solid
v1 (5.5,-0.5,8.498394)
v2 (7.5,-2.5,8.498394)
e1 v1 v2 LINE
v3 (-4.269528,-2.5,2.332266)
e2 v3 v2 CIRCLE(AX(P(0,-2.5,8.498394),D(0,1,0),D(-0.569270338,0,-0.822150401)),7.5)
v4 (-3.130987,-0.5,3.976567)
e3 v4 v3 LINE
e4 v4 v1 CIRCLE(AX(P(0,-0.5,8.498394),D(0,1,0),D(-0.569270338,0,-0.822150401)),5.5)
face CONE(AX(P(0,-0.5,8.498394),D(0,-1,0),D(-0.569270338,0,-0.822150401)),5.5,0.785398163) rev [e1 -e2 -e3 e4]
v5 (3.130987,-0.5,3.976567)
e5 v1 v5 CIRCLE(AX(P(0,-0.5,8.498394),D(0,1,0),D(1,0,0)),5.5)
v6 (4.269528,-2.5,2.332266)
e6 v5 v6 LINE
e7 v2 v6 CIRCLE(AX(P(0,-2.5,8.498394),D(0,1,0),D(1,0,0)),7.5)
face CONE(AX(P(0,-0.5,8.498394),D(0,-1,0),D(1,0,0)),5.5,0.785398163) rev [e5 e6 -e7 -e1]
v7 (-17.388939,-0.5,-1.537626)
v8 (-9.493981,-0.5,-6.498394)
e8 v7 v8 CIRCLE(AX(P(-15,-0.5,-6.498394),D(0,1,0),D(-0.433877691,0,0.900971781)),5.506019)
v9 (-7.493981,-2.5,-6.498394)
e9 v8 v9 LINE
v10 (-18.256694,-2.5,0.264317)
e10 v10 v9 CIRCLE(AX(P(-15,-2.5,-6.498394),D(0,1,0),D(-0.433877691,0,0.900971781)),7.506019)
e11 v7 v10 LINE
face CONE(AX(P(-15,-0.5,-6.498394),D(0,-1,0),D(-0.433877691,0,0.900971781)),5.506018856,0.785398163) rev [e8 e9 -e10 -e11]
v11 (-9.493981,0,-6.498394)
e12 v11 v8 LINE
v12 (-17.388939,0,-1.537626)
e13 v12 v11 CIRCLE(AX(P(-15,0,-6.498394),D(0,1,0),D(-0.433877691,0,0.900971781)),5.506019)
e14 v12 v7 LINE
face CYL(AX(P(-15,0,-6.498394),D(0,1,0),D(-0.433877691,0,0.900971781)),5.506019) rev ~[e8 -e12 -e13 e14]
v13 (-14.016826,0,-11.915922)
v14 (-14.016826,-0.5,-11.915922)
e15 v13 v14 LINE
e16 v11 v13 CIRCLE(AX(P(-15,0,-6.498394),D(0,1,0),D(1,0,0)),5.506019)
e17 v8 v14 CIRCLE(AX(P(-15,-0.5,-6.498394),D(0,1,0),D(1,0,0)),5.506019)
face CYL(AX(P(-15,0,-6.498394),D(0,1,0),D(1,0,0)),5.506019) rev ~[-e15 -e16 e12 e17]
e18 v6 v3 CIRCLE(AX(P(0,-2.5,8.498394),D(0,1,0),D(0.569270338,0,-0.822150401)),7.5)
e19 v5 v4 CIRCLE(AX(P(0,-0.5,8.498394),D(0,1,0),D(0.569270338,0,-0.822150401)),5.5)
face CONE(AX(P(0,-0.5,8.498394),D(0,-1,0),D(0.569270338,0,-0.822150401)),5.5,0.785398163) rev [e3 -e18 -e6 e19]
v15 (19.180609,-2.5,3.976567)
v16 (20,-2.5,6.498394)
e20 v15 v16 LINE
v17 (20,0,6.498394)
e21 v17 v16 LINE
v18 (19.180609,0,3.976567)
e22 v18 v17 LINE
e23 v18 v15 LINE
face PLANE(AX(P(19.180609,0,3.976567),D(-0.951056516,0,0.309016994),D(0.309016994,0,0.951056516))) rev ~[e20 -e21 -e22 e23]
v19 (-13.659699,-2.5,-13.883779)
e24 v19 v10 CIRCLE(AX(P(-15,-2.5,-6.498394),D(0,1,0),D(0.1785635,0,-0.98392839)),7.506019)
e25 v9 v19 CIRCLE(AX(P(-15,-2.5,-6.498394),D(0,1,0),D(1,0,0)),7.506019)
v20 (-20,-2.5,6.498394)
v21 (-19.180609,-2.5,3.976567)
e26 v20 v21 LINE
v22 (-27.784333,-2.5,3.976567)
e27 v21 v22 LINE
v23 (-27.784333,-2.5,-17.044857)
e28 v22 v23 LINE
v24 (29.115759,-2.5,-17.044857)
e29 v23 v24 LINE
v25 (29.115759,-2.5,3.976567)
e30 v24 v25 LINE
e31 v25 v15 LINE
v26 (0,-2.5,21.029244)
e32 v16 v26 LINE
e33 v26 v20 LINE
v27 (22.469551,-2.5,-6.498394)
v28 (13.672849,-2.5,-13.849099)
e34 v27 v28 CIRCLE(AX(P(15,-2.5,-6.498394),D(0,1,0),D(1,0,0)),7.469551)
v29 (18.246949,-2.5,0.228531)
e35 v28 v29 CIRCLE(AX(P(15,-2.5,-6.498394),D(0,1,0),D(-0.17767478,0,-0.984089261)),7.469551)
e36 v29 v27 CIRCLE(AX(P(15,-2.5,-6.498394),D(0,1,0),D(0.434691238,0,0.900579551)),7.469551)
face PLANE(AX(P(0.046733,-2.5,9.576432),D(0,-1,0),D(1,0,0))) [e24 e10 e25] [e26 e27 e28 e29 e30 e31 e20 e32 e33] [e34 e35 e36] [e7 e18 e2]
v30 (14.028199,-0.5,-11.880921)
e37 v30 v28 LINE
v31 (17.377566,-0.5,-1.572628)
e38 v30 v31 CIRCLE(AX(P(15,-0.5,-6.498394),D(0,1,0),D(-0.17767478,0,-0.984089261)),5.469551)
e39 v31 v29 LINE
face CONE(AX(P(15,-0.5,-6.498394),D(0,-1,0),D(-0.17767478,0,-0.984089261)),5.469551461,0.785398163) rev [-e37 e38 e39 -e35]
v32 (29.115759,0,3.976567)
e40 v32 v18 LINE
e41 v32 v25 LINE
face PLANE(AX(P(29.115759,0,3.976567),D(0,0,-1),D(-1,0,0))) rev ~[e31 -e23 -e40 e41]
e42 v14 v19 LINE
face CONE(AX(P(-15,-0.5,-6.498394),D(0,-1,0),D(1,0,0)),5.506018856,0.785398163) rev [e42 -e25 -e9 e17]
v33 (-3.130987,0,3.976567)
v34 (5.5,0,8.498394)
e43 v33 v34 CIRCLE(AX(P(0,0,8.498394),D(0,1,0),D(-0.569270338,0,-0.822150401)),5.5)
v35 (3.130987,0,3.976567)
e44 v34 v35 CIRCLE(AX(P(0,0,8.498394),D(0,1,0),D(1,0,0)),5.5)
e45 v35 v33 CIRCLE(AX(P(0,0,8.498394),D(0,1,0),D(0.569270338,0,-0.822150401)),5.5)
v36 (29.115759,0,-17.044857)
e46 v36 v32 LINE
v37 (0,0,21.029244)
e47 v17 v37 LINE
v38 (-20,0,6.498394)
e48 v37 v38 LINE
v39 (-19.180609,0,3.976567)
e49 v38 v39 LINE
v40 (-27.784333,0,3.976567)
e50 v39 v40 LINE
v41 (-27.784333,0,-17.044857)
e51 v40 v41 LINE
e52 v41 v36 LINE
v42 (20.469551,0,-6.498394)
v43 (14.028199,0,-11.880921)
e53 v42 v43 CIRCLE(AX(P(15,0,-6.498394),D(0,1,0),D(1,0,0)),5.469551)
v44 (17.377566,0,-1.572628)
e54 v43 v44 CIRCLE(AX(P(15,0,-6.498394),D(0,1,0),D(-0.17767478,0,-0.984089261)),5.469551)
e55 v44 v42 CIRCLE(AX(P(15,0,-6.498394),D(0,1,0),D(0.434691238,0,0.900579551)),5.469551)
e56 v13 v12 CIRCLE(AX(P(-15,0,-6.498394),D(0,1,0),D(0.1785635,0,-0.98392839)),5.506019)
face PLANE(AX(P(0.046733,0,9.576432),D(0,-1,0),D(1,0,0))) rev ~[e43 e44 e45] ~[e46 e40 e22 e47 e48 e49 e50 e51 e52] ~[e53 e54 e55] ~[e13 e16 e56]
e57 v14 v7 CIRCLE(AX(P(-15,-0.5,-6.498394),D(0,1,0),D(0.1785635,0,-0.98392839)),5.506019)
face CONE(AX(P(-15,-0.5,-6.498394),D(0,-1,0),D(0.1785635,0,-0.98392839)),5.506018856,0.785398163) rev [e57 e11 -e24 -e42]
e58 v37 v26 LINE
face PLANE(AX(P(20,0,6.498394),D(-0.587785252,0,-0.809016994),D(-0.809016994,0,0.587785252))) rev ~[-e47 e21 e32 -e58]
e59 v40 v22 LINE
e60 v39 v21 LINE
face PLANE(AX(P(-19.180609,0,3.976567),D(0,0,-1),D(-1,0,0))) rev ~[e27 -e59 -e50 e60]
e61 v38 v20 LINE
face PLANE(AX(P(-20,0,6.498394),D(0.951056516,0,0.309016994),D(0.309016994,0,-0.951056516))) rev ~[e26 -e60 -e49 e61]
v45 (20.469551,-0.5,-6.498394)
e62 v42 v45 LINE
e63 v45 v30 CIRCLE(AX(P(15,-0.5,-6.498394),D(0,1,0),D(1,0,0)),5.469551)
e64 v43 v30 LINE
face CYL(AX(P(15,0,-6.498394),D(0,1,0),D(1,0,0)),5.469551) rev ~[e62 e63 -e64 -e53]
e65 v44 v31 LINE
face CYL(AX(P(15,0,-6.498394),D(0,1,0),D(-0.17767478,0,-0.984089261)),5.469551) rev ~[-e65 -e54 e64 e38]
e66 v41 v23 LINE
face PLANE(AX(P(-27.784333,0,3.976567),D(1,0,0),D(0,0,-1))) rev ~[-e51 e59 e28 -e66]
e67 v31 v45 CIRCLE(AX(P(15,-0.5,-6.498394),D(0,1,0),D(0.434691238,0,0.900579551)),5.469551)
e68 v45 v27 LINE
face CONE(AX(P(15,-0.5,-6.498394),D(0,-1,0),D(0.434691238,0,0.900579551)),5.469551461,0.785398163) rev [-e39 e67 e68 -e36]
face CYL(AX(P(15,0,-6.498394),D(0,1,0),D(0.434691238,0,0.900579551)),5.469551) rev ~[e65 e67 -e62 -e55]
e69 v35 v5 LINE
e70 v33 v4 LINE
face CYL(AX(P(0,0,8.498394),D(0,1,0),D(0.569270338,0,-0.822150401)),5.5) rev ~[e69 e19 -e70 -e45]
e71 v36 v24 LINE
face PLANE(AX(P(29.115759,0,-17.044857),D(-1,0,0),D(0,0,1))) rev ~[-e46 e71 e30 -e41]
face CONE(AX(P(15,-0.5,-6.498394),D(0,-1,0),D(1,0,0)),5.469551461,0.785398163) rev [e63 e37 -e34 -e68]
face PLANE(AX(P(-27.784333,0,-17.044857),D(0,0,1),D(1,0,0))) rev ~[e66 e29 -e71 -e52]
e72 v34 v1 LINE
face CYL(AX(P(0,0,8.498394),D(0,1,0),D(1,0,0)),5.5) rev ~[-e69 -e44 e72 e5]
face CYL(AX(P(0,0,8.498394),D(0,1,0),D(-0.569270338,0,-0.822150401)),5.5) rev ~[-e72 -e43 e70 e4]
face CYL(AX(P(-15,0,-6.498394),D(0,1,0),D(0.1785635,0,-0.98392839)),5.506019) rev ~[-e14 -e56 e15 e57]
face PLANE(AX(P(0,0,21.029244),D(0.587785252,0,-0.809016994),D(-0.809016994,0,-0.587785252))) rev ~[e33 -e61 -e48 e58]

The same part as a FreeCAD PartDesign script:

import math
import FreeCAD as App
import Part
import Sketcher
Q = App.Units.Quantity


def edges_at(feature, points):
    """Names of the edges that pass closest to the given points."""
    edges = feature.Shape.Edges
    near = lambda p: min(range(len(edges)), key=lambda i: edges[i].distToShape(Part.Vertex(*p))[0])
    return sorted({f"Edge{near(p) + 1}" for p in points})

doc = App.newDocument("Part")
params = doc.addObject("Spreadsheet::Sheet", "Params")
for row, (alias, value) in enumerate([
    ("sketch1_radius", "5.5 mm"),
    ("pad1_length", "2.5 mm"),
    ("chamfer_size", "2 mm"),
], start=1):
    params.set(f"A{row}", alias)
    params.set(f"B{row}", "=" + value)
    params.setAlias(f"B{row}", alias)

body = doc.addObject("PartDesign::Body", "Body")

# Sketch on XZ plane
sketch1 = body.newObject("Sketcher::SketchObject", "Sketch")
sketch1.AttachmentSupport = (doc.getObject("XZ_Plane"), [""])
sketch1.MapMode = "FlatFace"
sketch1.addGeometry([
    Part.LineSegment(App.Vector(20, 6.5, 0), App.Vector(0, 21, 0)),  # 0
    Part.LineSegment(App.Vector(0, 21, 0), App.Vector(-20, 6.5, 0)),  # 1
    Part.LineSegment(App.Vector(-20, 6.5, 0), App.Vector(-19.2, 4, 0)),  # 2
    Part.LineSegment(App.Vector(-19.2, 4, 0), App.Vector(-27.8, 4, 0)),  # 3
    Part.LineSegment(App.Vector(-27.8, 4, 0), App.Vector(-27.8, -17, 0)),  # 4
    Part.LineSegment(App.Vector(-27.8, -17, 0), App.Vector(29.1, -17, 0)),  # 5
    Part.LineSegment(App.Vector(29.1, -17, 0), App.Vector(29.1, 4, 0)),  # 6
    Part.LineSegment(App.Vector(29.1, 4, 0), App.Vector(19.2, 4, 0)),  # 7
    Part.LineSegment(App.Vector(19.2, 4, 0), App.Vector(20, 6.5, 0)),  # 8
    Part.ArcOfCircle(Part.Circle(App.Vector(0, 8.5, 0), App.Vector(0, 0, 1), 5.5), math.radians(0), math.radians(235)),  # 9
    Part.ArcOfCircle(Part.Circle(App.Vector(0, 8.5, 0), App.Vector(0, 0, 1), 5.5), math.radians(-55), math.radians(0)),  # 10
    Part.ArcOfCircle(Part.Circle(App.Vector(0, 8.5, 0), App.Vector(0, 0, 1), 5.5), math.radians(-125), math.radians(-55)),  # 11
    Part.ArcOfCircle(Part.Circle(App.Vector(15, -6.5, 0), App.Vector(0, 0, 1), 5.5), math.radians(64), math.radians(260)),  # 12
    Part.ArcOfCircle(Part.Circle(App.Vector(15, -6.5, 0), App.Vector(0, 0, 1), 5.5), math.radians(0), math.radians(64)),  # 13
    Part.ArcOfCircle(Part.Circle(App.Vector(15, -6.5, 0), App.Vector(0, 0, 1), 5.5), math.radians(-100), math.radians(0)),  # 14
    Part.ArcOfCircle(Part.Circle(App.Vector(-15, -6.5, 0), App.Vector(0, 0, 1), 5.5), math.radians(0), math.radians(116)),  # 15
    Part.ArcOfCircle(Part.Circle(App.Vector(-15, -6.5, 0), App.Vector(0, 0, 1), 5.5), math.radians(-80), math.radians(0)),  # 16
    Part.ArcOfCircle(Part.Circle(App.Vector(-15, -6.5, 0), App.Vector(0, 0, 1), 5.5), math.radians(116), math.radians(280)),  # 17
], False)
sketch1.addConstraint([
    Sketcher.Constraint("Coincident", 0, 2, 1, 1),
    Sketcher.Constraint("Coincident", 1, 2, 2, 1),
    Sketcher.Constraint("Coincident", 2, 2, 3, 1),
    Sketcher.Constraint("Coincident", 3, 2, 4, 1),
    Sketcher.Constraint("Coincident", 4, 2, 5, 1),
    Sketcher.Constraint("Coincident", 5, 2, 6, 1),
    Sketcher.Constraint("Coincident", 6, 2, 7, 1),
    Sketcher.Constraint("Coincident", 7, 2, 8, 1),
    Sketcher.Constraint("Coincident", 8, 2, 0, 1),
    Sketcher.Constraint("Tangent", 9, 1, 10, 2),
    Sketcher.Constraint("Tangent", 10, 1, 11, 2),
    Sketcher.Constraint("Tangent", 11, 1, 9, 2),
    Sketcher.Constraint("Tangent", 12, 1, 13, 2),
    Sketcher.Constraint("Tangent", 13, 1, 14, 2),
    Sketcher.Constraint("Tangent", 14, 1, 12, 2),
    Sketcher.Constraint("Tangent", 15, 1, 16, 2),
    Sketcher.Constraint("Tangent", 16, 1, 17, 2),
    Sketcher.Constraint("Tangent", 17, 1, 15, 2),
    Sketcher.Constraint("Horizontal", 3),
    Sketcher.Constraint("Vertical", 4),
    Sketcher.Constraint("Horizontal", 5),
    Sketcher.Constraint("Vertical", 6),
    Sketcher.Constraint("Horizontal", 7),
    Sketcher.Constraint("Symmetric", 12, 3, 15, 3, -2),
    Sketcher.Constraint("Symmetric", 2, 2, 7, 2, -2),
    Sketcher.Constraint("Symmetric", 1, 2, 8, 2, -2),
    Sketcher.Constraint("Symmetric", 10, 1, 11, 1, -2),
    Sketcher.Constraint("PointOnObject", 0, 2, -2),
    Sketcher.Constraint("Horizontal", 11, 3, 9, 1),
    Sketcher.Constraint("Horizontal", 7, 2, 10, 1),
    Sketcher.Constraint("Horizontal", 17, 3, 13, 1),
    Sketcher.Constraint("Horizontal", 13, 1, 15, 1),
    Sketcher.Constraint("Radius", 9, Q("5.5 mm")),
    Sketcher.Constraint("Angle", 0, Q("144 deg")),
    Sketcher.Constraint("Angle", 2, Q("-72 deg")),
    Sketcher.Constraint("DistanceX", -1, 1, 12, 3, Q("15 mm")),
    Sketcher.Constraint("DistanceX", 1, 2, -1, 1, Q("20 mm")),
    Sketcher.Constraint("DistanceY", 1, 2, 9, 3, Q("2 mm")),
    Sketcher.Constraint("Radius", 12, Q("5.469551 mm")),
    Sketcher.Constraint("Radius", 15, Q("5.506019 mm")),
    Sketcher.Constraint("DistanceX", 5, 1, 5, 2, Q("56.900091 mm")),
    Sketcher.Constraint("DistanceX", 7, 2, 7, 1, Q("9.93515 mm")),
    Sketcher.Constraint("DistanceX", -1, 1, 14, 1, Q("14.028199 mm")),
    Sketcher.Constraint("DistanceX", 3, 2, 3, 1, Q("8.603724 mm")),
    Sketcher.Constraint("DistanceY", 4, 2, 4, 1, Q("21.021424 mm")),
    Sketcher.Constraint("DistanceY", 14, 1, -1, 1, Q("11.880921 mm")),
    Sketcher.Constraint("DistanceX", 17, 1, -1, 1, Q("17.388939 mm")),
    Sketcher.Constraint("DistanceY", 12, 3, 0, 2, Q("27.527638 mm")),
    Sketcher.Constraint("DistanceY", 12, 1, 8, 2, Q("8.071022 mm")),
    Sketcher.Constraint("DistanceY", 16, 1, 15, 3, Q("5.417528 mm")),
])
sketch1.setExpression("Constraints[32]", "Params.sketch1_radius")
pad1 = body.newObject("PartDesign::Pad", "Pad")
pad1.Profile = sketch1
pad1.setExpression("Length", "Params.pad1_length")
doc.recompute()

chamfer = body.newObject("PartDesign::Chamfer", "Chamfer")
chamfer.Base = (pad1, edges_at(pad1, [(-2.552, -2.5, 13.37), (9.798, -2.5, -4.808), (-20.237, -2.5, -8.2)]))
chamfer.setExpression("Size", "Params.chamfer_size")

doc.recompute()
